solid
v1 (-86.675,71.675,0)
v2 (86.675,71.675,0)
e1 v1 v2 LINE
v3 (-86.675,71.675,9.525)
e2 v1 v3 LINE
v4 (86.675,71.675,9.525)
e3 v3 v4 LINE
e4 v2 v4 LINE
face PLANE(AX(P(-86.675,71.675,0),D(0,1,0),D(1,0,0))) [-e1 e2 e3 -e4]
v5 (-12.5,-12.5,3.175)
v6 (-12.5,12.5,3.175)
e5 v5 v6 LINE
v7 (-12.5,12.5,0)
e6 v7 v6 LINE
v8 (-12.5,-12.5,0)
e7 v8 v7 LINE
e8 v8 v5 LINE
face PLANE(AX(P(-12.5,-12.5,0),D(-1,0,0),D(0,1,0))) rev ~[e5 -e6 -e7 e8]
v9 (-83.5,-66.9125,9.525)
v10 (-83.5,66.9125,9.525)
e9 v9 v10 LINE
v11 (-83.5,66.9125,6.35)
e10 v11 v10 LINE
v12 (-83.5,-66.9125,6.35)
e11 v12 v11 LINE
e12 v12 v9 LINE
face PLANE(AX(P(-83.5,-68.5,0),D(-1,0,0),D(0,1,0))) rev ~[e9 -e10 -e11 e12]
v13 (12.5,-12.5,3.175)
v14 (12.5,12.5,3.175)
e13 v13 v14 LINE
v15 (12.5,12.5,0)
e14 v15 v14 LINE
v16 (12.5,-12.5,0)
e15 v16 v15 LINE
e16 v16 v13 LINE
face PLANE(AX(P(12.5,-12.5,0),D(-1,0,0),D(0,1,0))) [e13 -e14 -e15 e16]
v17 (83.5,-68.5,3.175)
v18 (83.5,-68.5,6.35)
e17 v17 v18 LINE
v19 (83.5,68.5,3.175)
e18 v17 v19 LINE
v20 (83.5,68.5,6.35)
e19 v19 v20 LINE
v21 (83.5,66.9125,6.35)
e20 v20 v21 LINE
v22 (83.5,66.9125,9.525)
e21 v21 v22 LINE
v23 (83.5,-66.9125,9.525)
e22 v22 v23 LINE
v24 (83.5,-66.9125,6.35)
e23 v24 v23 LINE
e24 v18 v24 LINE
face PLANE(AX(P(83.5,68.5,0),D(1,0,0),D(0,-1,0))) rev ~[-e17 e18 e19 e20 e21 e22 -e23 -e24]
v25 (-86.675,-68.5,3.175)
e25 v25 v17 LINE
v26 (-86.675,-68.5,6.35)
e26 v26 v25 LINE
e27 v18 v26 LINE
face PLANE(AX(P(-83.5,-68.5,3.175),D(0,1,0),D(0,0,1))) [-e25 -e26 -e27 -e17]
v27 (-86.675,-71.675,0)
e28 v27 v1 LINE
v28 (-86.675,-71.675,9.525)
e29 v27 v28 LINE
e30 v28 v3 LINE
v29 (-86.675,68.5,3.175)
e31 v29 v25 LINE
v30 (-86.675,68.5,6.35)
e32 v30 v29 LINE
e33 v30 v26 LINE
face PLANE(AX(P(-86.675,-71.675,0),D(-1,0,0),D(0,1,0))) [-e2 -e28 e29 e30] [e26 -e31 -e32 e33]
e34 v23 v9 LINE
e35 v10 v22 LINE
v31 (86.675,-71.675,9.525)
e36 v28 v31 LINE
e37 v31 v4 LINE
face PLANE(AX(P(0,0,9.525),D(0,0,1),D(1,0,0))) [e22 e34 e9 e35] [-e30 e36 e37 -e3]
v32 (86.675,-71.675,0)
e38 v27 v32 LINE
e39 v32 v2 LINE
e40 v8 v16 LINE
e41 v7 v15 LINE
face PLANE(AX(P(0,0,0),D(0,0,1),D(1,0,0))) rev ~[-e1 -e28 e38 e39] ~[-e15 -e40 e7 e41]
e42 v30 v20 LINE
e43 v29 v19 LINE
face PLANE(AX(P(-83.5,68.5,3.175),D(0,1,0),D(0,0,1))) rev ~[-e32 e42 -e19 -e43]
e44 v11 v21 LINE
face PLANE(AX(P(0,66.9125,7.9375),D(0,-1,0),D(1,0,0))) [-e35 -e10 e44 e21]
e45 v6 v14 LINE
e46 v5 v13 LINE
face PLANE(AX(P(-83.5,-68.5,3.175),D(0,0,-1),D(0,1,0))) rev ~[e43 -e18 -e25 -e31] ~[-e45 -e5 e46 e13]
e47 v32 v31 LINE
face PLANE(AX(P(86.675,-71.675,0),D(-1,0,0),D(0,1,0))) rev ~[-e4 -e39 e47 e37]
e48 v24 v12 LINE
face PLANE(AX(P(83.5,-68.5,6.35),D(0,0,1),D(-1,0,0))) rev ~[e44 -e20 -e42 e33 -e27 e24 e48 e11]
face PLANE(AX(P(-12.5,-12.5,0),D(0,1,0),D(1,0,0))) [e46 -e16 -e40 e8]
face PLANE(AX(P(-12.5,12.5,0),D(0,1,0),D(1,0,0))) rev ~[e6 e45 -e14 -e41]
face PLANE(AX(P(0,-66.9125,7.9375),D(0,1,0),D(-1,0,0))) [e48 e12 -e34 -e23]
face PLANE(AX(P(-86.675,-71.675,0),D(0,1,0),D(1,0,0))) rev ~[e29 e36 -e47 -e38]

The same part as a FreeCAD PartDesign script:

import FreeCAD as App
import Part
import Sketcher
Q = App.Units.Quantity


def add_polygon(sketch, points):
    """Adds a closed chain of lines whose ends are joined by coincident constraints."""
    first, n = sketch.GeometryCount, len(points)
    for a, b in zip(points, points[1:] + points[:1]):
        sketch.addGeometry(Part.LineSegment(App.Vector(*a, 0), App.Vector(*b, 0)), False)
    for i in range(n):
        sketch.addConstraint(Sketcher.Constraint("Coincident", first + i, 2, first + (i + 1) % n, 1))

doc = App.newDocument("Part")
body = doc.addObject("PartDesign::Body", "Body")

# Sketch on XY plane
sketch1 = doc.addObject("Sketcher::SketchObject", "Sketch")
body.addObject(sketch1)
sketch1.AttachmentSupport = (doc.XY_Plane, [""])
sketch1.MapMode = "FlatFace"
add_polygon(sketch1, [(-83.5, 68.5), (-83.5, -68.5), (83.5, -68.5), (83.5, 68.5)])  # lines 0-3
add_polygon(sketch1, [(12.5, -12.5), (-12.5, -12.5), (-12.5, 12.5), (12.5, 12.5)])  # lines 4-7
sketch1.addConstraint([
    Sketcher.Constraint("Vertical", 0),
    Sketcher.Constraint("Horizontal", 1),
    Sketcher.Constraint("Vertical", 2),
    Sketcher.Constraint("Horizontal", 3),
    Sketcher.Constraint("Horizontal", 4),
    Sketcher.Constraint("Vertical", 5),
    Sketcher.Constraint("Horizontal", 6),
    Sketcher.Constraint("Vertical", 7),
    Sketcher.Constraint("Symmetric", 0, 2, 2, 2, -1, 1),
    Sketcher.Constraint("Symmetric", 4, 2, 6, 2, -1, 1),
    Sketcher.Constraint("Equal", 6, 5),
    Sketcher.Constraint("DistanceX", 1, 1, 1, 2, 167.0),
    Sketcher.Constraint("DistanceX", 4, 2, 4, 1, 25.0),
    Sketcher.Constraint("DistanceY", 0, 2, 0, 1, 137.0),
])
pad1 = doc.addObject("PartDesign::Pad", "Pad")
body.addObject(pad1)
pad1.Profile = sketch1
pad1.Length = Q("0.125 in")

# Sketch on XY plane
sketch2 = doc.addObject("Sketcher::SketchObject", "Sketch001")
body.addObject(sketch2)
sketch2.AttachmentSupport = (doc.XY_Plane, [""])
sketch2.MapMode = "FlatFace"
add_polygon(sketch2, [(-86.675, 71.675), (-86.675, -71.675), (86.675, -71.675), (86.675, 71.675)])  # lines 0-3
add_polygon(sketch2, [(-83.5, -68.5), (-83.5, 68.5), (83.5, 68.5), (83.5, -68.5)])  # lines 4-7
sketch2.addConstraint([
    Sketcher.Constraint("Vertical", 0),
    Sketcher.Constraint("Horizontal", 1),
    Sketcher.Constraint("Vertical", 2),
    Sketcher.Constraint("Horizontal", 3),
    Sketcher.Constraint("Vertical", 4),
    Sketcher.Constraint("Horizontal", 5),
    Sketcher.Constraint("Vertical", 6),
    Sketcher.Constraint("Horizontal", 7),
    Sketcher.Constraint("Symmetric", 0, 2, 2, 2, -1, 1),
    Sketcher.Constraint("Symmetric", 4, 2, 6, 2, -1, 1),
    Sketcher.Constraint("DistanceX", 3, 2, 4, 2, Q("0.125 in")),
    Sketcher.Constraint("DistanceY", 4, 2, 3, 2, Q("0.125 in")),
    Sketcher.Constraint("DistanceX", 1, 1, 1, 2, 173.35),
    Sketcher.Constraint("DistanceY", 0, 2, 0, 1, 143.35),
])
pad2 = doc.addObject("PartDesign::Pad", "Pad001")
body.addObject(pad2)
pad2.Profile = sketch2
pad2.Length = Q("0.375 in")

# Sketch on YZ plane
sketch3 = doc.addObject("Sketcher::SketchObject", "Sketch002")
body.addObject(sketch3)
sketch3.AttachmentSupport = (doc.YZ_Plane, [""])
sketch3.MapMode = "FlatFace"
sketch3.AttachmentOffset = App.Placement(App.Vector(0, 0, -83.5), App.Rotation())
add_polygon(sketch3, [(-68.5, 6.35), (-68.5, 3.175), (68.5, 3.175), (68.5, 6.35)])  # lines 0-3
sketch3.addConstraint([
    Sketcher.Constraint("Vertical", 0),
    Sketcher.Constraint("Horizontal", 1),
    Sketcher.Constraint("Vertical", 2),
    Sketcher.Constraint("Horizontal", 3),
    Sketcher.Constraint("DistanceY", 0, 2, 0, 1, Q("0.125 in")),
    Sketcher.Constraint("DistanceY", -1, 1, 2, 2, Q("0.25 in")),
    Sketcher.Constraint("DistanceX", 1, 1, 1, 2, 137.0),
    Sketcher.Constraint("DistanceX", 0, 2, -1, 1, 68.5),
])
pocket1 = doc.addObject("PartDesign::Pocket", "Pocket")
body.addObject(pocket1)
pocket1.Profile = sketch3
pocket1.Length = Q("1 in")

# Sketch on XZ plane
sketch4 = doc.addObject("Sketcher::SketchObject", "Sketch003")
body.addObject(sketch4)
sketch4.AttachmentSupport = (doc.XZ_Plane, [""])
sketch4.MapMode = "FlatFace"
sketch4.AttachmentOffset = App.Placement(App.Vector(0, 0, -68.5), App.Rotation())
add_polygon(sketch4, [(-83.5, 9.525), (-83.5, 6.35), (83.5, 6.35), (83.5, 9.525)])  # lines 0-3
sketch4.addConstraint([
    Sketcher.Constraint("Vertical", 0),
    Sketcher.Constraint("Horizontal", 1),
    Sketcher.Constraint("Vertical", 2),
    Sketcher.Constraint("Horizontal", 3),
    Sketcher.Constraint("DistanceY", 0, 2, 0, 1, Q("0.125 in")),
    Sketcher.Constraint("DistanceY", -1, 1, 0, 2, Q("0.25 in")),
    Sketcher.Constraint("DistanceX", 1, 1, 1, 2, 167.0),
    Sketcher.Constraint("DistanceX", 0, 2, -1, 1, 83.5),
])
pad3 = doc.addObject("PartDesign::Pad", "Pad002")
body.addObject(pad3)
pad3.Profile = sketch4
pad3.Length = Q("0.0625 in")

# Sketch on XZ plane
sketch5 = doc.addObject("Sketcher::SketchObject", "Sketch004")
body.addObject(sketch5)
sketch5.AttachmentSupport = (doc.XZ_Plane, [""])
sketch5.MapMode = "FlatFace"
sketch5.AttachmentOffset = App.Placement(App.Vector(0, 0, 68.5), App.Rotation())
add_polygon(sketch5, [(83.5, 9.525), (83.5, 6.35), (-83.5, 6.35), (-83.5, 9.525)])  # lines 0-3
sketch5.addConstraint([
    Sketcher.Constraint("Vertical", 0),
    Sketcher.Constraint("Horizontal", 1),
    Sketcher.Constraint("Vertical", 2),
    Sketcher.Constraint("Horizontal", 3),
    Sketcher.Constraint("DistanceY", 0, 2, 0, 1, Q("0.125 in")),
    Sketcher.Constraint("DistanceY", -1, 1, 0, 2, Q("0.25 in")),
    Sketcher.Constraint("DistanceX", 1, 2, 1, 1, 167.0),
    Sketcher.Constraint("DistanceX", -1, 1, 0, 2, 83.5),
])
pad4 = doc.addObject("PartDesign::Pad", "Pad003")
body.addObject(pad4)
pad4.Profile = sketch5
pad4.Length = Q("0.0625 in")
pad4.Reversed = True

doc.recompute()
